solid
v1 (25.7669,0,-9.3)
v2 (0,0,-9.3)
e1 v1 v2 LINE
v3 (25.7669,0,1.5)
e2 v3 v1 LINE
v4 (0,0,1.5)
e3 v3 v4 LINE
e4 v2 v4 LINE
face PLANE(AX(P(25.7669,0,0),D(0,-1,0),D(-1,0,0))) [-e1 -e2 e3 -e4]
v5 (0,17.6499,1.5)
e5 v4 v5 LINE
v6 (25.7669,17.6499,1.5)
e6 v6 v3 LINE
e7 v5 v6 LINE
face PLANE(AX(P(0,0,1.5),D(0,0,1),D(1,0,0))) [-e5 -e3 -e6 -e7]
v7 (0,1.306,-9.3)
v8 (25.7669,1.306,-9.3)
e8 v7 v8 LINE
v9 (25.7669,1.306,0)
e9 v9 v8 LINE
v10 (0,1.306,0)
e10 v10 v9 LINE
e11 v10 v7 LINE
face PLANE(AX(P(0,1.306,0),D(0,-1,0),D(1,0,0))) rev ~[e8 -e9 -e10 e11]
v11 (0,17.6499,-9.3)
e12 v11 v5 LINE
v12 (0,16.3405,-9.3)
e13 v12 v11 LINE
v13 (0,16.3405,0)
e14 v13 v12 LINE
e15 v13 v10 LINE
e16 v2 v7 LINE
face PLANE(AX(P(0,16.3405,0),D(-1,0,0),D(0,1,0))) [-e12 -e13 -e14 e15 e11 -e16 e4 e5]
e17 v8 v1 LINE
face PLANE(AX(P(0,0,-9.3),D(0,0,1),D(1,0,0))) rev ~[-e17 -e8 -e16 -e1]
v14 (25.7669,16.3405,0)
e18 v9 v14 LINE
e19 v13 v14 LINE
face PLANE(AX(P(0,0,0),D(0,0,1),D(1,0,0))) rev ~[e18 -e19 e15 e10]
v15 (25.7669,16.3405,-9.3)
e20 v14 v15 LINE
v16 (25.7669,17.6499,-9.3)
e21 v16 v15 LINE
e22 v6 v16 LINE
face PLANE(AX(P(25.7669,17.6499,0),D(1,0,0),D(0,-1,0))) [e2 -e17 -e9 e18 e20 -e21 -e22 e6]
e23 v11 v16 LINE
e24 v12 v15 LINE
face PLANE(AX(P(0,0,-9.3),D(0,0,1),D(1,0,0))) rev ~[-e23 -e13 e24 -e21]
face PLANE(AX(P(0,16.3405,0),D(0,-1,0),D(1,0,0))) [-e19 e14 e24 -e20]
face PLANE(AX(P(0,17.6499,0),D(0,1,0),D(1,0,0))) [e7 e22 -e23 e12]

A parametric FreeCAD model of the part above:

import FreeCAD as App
import Part
import Sketcher

V = App.Vector

doc = App.newDocument("Part")
body = doc.addObject("PartDesign::Body", "Body")

# Sketch on XY plane
sketch1 = body.newObject("Sketcher::SketchObject", "Sketch")
sketch1.AttachmentSupport = (doc.getObject("XY_Plane"), [""])
sketch1.MapMode = "FlatFace"
sketch1.addGeometry([
    Part.LineSegment(V(26, 18, 0), V(0, 18, 0)),
    Part.LineSegment(V(0, 18, 0), V(0, 0, 0)),
    Part.LineSegment(V(0, 0, 0), V(26, 0, 0)),
    Part.LineSegment(V(26, 0, 0), V(26, 18, 0)),
], False)
sketch1.addConstraint([
    Sketcher.Constraint("Coincident", 0, 2, 1, 1),
    Sketcher.Constraint("Coincident", 1, 2, 2, 1),
    Sketcher.Constraint("Coincident", 2, 2, 3, 1),
    Sketcher.Constraint("Coincident", 3, 2, 0, 1),
    Sketcher.Constraint("Horizontal", 0),
    Sketcher.Constraint("Vertical", 1),
    Sketcher.Constraint("Horizontal", 2),
    Sketcher.Constraint("Vertical", 3),
    Sketcher.Constraint("Coincident", 1, 2, -1, 1),
    Sketcher.Constraint("DistanceY", 1, 2, 1, 1, 17.65),
    Sketcher.Constraint("DistanceX", 0, 2, 0, 1, 25.767),
])
pad1 = body.newObject("PartDesign::Pad", "Pad")
pad1.Profile = sketch1
pad1.Length = 1.5

# Sketch on XY plane
sketch2 = body.newObject("Sketcher::SketchObject", "Sketch001")
sketch2.AttachmentSupport = (doc.getObject("XY_Plane"), [""])
sketch2.MapMode = "FlatFace"
sketch2.addGeometry([
    Part.LineSegment(V(25.8, 17.6, 0), V(0, 17.6, 0)),  # 0
    Part.LineSegment(V(0, 17.6, 0), V(0, 16.3, 0)),  # 1
    Part.LineSegment(V(0, 16.3, 0), V(25.8, 16.3, 0)),  # 2
    Part.LineSegment(V(25.8, 16.3, 0), V(25.8, 17.6, 0)),  # 3
    Part.LineSegment(V(25.8, 1.3, 0), V(0, 1.3, 0)),  # 4
    Part.LineSegment(V(0, 1.3, 0), V(0, 0, 0)),  # 5
    Part.LineSegment(V(0, 0, 0), V(25.8, 0, 0)),  # 6
    Part.LineSegment(V(25.8, 0, 0), V(25.8, 1.3, 0)),  # 7
], False)
sketch2.addConstraint([
    Sketcher.Constraint("Coincident", 0, 2, 1, 1),
    Sketcher.Constraint("Coincident", 1, 2, 2, 1),
    Sketcher.Constraint("Coincident", 2, 2, 3, 1),
    Sketcher.Constraint("Coincident", 3, 2, 0, 1),
    Sketcher.Constraint("Coincident", 4, 2, 5, 1),
    Sketcher.Constraint("Coincident", 5, 2, 6, 1),
    Sketcher.Constraint("Coincident", 6, 2, 7, 1),
    Sketcher.Constraint("Coincident", 7, 2, 4, 1),
    Sketcher.Constraint("Horizontal", 0),
    Sketcher.Constraint("Vertical", 1),
    Sketcher.Constraint("Horizontal", 2),
    Sketcher.Constraint("Vertical", 3),
    Sketcher.Constraint("Horizontal", 4),
    Sketcher.Constraint("Vertical", 5),
    Sketcher.Constraint("Horizontal", 6),
    Sketcher.Constraint("Vertical", 7),
    Sketcher.Constraint("Coincident", 5, 2, -1, 1),
    Sketcher.Constraint("PointOnObject", 0, 2, -2),
    Sketcher.Constraint("Vertical", 3, 2, 6, 2),
    Sketcher.Constraint("DistanceX", 0, 2, 0, 1, 25.767),
    Sketcher.Constraint("DistanceY", 5, 2, 5, 1, 1.306),
    Sketcher.Constraint("DistanceY", -1, 1, 0, 2, 17.65),
    Sketcher.Constraint("DistanceY", 1, 2, 1, 1, 1.3094),
])
pad2 = body.newObject("PartDesign::Pad", "Pad001")
pad2.Profile = sketch2
pad2.Length = 9.3
pad2.Reversed = True

doc.recompute()
